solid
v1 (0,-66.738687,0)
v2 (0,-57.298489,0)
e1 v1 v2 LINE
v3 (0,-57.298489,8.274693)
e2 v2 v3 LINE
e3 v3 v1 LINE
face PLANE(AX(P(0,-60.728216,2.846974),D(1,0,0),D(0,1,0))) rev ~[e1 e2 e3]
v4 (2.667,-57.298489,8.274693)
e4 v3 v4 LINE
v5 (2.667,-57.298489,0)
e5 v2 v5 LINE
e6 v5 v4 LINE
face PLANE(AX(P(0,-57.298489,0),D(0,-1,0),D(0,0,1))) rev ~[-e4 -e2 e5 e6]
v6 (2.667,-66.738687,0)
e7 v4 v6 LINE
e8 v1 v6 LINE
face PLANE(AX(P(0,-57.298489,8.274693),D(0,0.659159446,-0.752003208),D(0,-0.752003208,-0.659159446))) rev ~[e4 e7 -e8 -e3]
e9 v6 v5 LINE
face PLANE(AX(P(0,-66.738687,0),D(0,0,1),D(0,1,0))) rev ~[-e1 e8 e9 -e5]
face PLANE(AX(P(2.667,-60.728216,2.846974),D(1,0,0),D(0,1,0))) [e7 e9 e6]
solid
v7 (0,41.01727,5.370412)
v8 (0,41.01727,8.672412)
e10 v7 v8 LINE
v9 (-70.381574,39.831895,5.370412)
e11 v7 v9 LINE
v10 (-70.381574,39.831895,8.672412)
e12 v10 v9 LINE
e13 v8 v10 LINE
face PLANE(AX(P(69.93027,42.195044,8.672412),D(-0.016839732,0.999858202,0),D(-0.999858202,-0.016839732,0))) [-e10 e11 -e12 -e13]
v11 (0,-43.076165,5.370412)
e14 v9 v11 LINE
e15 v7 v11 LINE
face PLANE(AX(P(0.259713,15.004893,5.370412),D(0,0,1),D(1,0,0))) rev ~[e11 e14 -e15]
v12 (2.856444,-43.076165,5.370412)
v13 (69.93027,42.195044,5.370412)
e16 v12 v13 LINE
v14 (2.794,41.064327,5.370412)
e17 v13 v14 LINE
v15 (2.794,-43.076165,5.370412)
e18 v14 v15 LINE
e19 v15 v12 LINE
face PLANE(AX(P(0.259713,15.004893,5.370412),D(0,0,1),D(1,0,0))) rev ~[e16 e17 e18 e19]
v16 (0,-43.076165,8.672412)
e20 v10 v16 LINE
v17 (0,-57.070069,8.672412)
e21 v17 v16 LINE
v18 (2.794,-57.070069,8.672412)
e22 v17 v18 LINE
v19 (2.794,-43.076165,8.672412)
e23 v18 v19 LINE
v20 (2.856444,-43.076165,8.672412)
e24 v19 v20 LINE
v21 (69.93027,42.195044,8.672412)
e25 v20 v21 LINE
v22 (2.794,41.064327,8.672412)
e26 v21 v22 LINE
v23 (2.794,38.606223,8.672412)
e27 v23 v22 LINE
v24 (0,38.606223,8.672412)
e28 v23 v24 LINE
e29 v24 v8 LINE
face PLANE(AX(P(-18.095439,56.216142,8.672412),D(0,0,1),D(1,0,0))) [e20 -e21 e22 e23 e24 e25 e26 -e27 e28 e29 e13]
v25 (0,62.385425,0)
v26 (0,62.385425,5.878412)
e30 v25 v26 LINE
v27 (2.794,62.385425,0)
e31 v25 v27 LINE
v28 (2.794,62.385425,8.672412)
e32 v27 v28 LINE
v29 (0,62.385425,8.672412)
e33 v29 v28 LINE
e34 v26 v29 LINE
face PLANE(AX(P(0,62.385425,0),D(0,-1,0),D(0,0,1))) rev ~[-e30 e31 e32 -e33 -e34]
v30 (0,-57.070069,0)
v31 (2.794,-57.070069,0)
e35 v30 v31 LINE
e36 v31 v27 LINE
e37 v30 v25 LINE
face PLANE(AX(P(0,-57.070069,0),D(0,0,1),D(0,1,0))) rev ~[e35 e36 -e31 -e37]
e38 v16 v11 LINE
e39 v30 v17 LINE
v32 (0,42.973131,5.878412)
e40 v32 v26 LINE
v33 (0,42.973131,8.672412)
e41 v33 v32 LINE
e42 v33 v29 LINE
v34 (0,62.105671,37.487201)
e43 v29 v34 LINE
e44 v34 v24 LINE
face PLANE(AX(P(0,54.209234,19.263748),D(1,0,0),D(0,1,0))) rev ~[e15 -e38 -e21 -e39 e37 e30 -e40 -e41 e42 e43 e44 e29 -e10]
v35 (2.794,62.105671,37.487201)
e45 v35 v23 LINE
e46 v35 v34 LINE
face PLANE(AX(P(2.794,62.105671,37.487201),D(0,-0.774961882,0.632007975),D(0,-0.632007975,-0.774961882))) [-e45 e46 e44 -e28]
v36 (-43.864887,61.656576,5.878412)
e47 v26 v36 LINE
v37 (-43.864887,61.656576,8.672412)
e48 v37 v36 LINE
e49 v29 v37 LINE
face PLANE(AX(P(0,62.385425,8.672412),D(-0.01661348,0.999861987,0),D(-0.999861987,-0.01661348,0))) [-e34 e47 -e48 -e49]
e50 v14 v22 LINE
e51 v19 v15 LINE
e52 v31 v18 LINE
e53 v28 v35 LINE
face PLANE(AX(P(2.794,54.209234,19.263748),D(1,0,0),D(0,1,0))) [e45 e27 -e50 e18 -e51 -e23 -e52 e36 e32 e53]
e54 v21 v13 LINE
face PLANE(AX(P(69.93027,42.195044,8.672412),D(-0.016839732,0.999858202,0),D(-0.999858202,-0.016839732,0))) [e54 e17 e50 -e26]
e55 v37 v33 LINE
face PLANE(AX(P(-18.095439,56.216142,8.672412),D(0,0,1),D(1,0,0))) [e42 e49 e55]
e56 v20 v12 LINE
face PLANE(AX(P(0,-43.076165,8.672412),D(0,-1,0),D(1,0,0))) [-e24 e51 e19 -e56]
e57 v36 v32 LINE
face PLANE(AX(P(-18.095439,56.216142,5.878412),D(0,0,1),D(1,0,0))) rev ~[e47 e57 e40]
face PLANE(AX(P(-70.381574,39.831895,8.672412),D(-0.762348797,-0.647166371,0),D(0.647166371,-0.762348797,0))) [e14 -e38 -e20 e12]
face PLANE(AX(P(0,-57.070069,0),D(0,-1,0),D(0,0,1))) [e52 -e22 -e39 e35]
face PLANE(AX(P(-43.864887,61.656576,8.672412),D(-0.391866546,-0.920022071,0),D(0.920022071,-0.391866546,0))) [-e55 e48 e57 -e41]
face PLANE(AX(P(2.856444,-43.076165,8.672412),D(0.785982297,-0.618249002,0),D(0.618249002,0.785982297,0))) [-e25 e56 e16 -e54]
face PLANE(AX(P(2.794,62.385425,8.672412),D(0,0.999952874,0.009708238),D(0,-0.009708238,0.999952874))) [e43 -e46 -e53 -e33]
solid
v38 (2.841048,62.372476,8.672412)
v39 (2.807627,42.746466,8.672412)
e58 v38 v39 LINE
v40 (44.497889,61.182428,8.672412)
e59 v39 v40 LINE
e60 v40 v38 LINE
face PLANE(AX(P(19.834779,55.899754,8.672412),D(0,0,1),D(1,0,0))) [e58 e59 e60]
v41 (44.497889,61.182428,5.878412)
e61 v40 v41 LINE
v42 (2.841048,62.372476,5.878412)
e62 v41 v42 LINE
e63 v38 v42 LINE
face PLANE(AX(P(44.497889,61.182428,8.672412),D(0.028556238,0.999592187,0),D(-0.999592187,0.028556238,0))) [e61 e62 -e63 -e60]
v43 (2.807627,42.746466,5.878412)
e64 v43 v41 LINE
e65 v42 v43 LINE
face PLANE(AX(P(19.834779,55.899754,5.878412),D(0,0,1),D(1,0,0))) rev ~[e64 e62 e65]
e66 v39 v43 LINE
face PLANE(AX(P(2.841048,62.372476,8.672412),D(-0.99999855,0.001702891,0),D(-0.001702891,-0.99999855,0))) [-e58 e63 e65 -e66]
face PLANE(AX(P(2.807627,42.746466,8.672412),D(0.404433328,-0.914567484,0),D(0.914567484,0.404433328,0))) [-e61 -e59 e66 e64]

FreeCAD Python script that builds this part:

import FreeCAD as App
import Part
import Sketcher
Q = App.Units.Quantity

doc = App.newDocument("Part")
body = doc.addObject("PartDesign::Body", "Body")
body.AllowCompound = True

sketch1 = body.newObject("Sketcher::SketchObject", "Sketch")
sketch1.AttachmentSupport = (doc.getObject("YZ_Plane"), [""])
sketch1.MapMode = "FlatFace"
sketch1.addGeometry([
    Part.LineSegment(App.Vector(-57, 9, 0), App.Vector(-57, 0, 0)),
    Part.LineSegment(App.Vector(-57, 0, 0), App.Vector(62, 0, 0)),
    Part.LineSegment(App.Vector(62, 0, 0), App.Vector(62, 9, 0)),
    Part.LineSegment(App.Vector(62, 9, 0), App.Vector(-57, 9, 0)),
], False)
sketch1.addConstraint([
    Sketcher.Constraint("Coincident", 0, 2, 1, 1),
    Sketcher.Constraint("Coincident", 1, 2, 2, 1),
    Sketcher.Constraint("Coincident", 2, 2, 3, 1),
    Sketcher.Constraint("Coincident", 3, 2, 0, 1),
    Sketcher.Constraint("Vertical", 0),
    Sketcher.Constraint("Horizontal", 1),
    Sketcher.Constraint("Vertical", 2),
    Sketcher.Constraint("Horizontal", 3),
    Sketcher.Constraint("PointOnObject", 0, 2, -1),
    Sketcher.Constraint("DistanceX", 1, 1, 1, 2, 119.455494),
    Sketcher.Constraint("DistanceY", 0, 2, 0, 1, 8.672412),
    Sketcher.Constraint("DistanceX", 0, 2, -1, 1, 57.070069),
])
pad1 = body.newObject("PartDesign::Pad", "Pad")
pad1.Profile = sketch1
pad1.Length = Q("0.11 in")

sketch2 = body.newObject("Sketcher::SketchObject", "Sketch001")
sketch2.AttachmentSupport = (doc.getObject("XY_Plane"), [""])
sketch2.MapMode = "FlatFace"
sketch2.AttachmentOffset = App.Placement(App.Vector(0, 0, 8.672412), App.Rotation())
sketch2.addGeometry([
    Part.LineSegment(App.Vector(0, -43.1, 0), App.Vector(2.9, -43.1, 0)),
    Part.LineSegment(App.Vector(2.9, -43.1, 0), App.Vector(69.9, 42.2, 0)),
    Part.LineSegment(App.Vector(69.9, 42.2, 0), App.Vector(-70.4, 39.8, 0)),
    Part.LineSegment(App.Vector(-70.4, 39.8, 0), App.Vector(0, -43.1, 0)),
], False)
sketch2.addConstraint([
    Sketcher.Constraint("Coincident", 0, 2, 1, 1),
    Sketcher.Constraint("Coincident", 1, 2, 2, 1),
    Sketcher.Constraint("Coincident", 2, 2, 3, 1),
    Sketcher.Constraint("Coincident", 3, 2, 0, 1),
    Sketcher.Constraint("Horizontal", 0),
    Sketcher.Constraint("PointOnObject", 3, 2, -2),
    Sketcher.Constraint("DistanceX", 0, 1, 0, 2, 2.856444),
    Sketcher.Constraint("DistanceX", -1, 1, 1, 2, 69.93027),
    Sketcher.Constraint("DistanceY", 0, 2, 1, 2, 85.271209),
    Sketcher.Constraint("DistanceY", 0, 2, 2, 2, 82.90806),
    Sketcher.Constraint("Distance", 2, 140.331743),
    Sketcher.Constraint("DistanceY", 0, 2, -1, 1, 43.076165),
])
pad2 = body.newObject("PartDesign::Pad", "Pad001")
pad2.Profile = sketch2
pad2.Length = Q("0.13 in")
pad2.Reversed = True

sketch3 = body.newObject("Sketcher::SketchObject", "Sketch002")
sketch3.AttachmentSupport = (doc.getObject("XY_Plane"), [""])
sketch3.MapMode = "FlatFace"
sketch3.AttachmentOffset = App.Placement(App.Vector(0, 0, 8.672412), App.Rotation())
sketch3.addGeometry([
    Part.LineSegment(App.Vector(3, 62, 0), App.Vector(3, 43, 0)),
    Part.LineSegment(App.Vector(3, 43, 0), App.Vector(44, 61, 0)),
    Part.LineSegment(App.Vector(44, 61, 0), App.Vector(3, 62, 0)),
    Part.LineSegment(App.Vector(-44, 62, 0), App.Vector(0, 43, 0)),
    Part.LineSegment(App.Vector(0, 43, 0), App.Vector(0, 62, 0)),
    Part.LineSegment(App.Vector(0, 62, 0), App.Vector(-44, 62, 0)),
], False)
sketch3.addConstraint([
    Sketcher.Constraint("Coincident", 0, 2, 1, 1),
    Sketcher.Constraint("Coincident", 1, 2, 2, 1),
    Sketcher.Constraint("Coincident", 2, 2, 0, 1),
    Sketcher.Constraint("Coincident", 3, 2, 4, 1),
    Sketcher.Constraint("Coincident", 4, 2, 5, 1),
    Sketcher.Constraint("Coincident", 5, 2, 3, 1),
    Sketcher.Constraint("Vertical", 4),
    Sketcher.Constraint("PointOnObject", 3, 2, -2),
    Sketcher.Constraint("DistanceY", 5, 2, 2, 2, 0.7159),
    Sketcher.Constraint("Distance", 0, 19.626038),
    Sketcher.Constraint("Distance", 3, 47.678081),
    Sketcher.Constraint("Distance", 5, 43.870942),
    Sketcher.Constraint("DistanceY", 4, 1, 4, 2, 19.412294),
    Sketcher.Constraint("DistanceX", -1, 1, 1, 2, 44.497889),
    Sketcher.Constraint("DistanceY", -1, 1, 1, 2, 61.182428),
    Sketcher.Constraint("DistanceY", -1, 1, 3, 2, 42.973131),
    Sketcher.Constraint("DistanceX", 0, 2, 2, 2, 0.033421),
    Sketcher.Constraint("DistanceX", 2, 2, 1, 2, 41.656841),
])
pad3 = body.newObject("PartDesign::Pad", "Pad002")
pad3.Profile = sketch3
pad3.Length = Q("0.11 in")
pad3.Reversed = True

sketch4 = body.newObject("Sketcher::SketchObject", "Sketch003")
sketch4.AttachmentSupport = (doc.getObject("YZ_Plane"), [""])
sketch4.MapMode = "FlatFace"
sketch4.AttachmentOffset = App.Placement(App.Vector(0, 0, 0.11 * 25.4), App.Rotation())
sketch4.addGeometry([
    Part.LineSegment(App.Vector(62, 37, 0), App.Vector(39, 9, 0)),
    Part.LineSegment(App.Vector(39, 9, 0), App.Vector(62, 9, 0)),
    Part.LineSegment(App.Vector(62, 9, 0), App.Vector(62, 37, 0)),
], False)
sketch4.addConstraint([
    Sketcher.Constraint("Coincident", 0, 2, 1, 1),
    Sketcher.Constraint("Coincident", 1, 2, 2, 1),
    Sketcher.Constraint("Coincident", 2, 2, 0, 1),
    Sketcher.Constraint("Horizontal", 1),
    Sketcher.Constraint("DistanceX", 1, 1, 1, 2, 23.779202),
    Sketcher.Constraint("Distance", 0, 37.182202),
    Sketcher.Constraint("DistanceY", -1, 1, 2, 2, 37.487201),
    Sketcher.Constraint("DistanceX", -1, 1, 2, 2, 62.105671),
    Sketcher.Constraint("DistanceY", 1, 2, 2, 2, 28.814789),
])
pad4 = body.newObject("PartDesign::Pad", "Pad003")
pad4.Profile = sketch4
pad4.Length = Q("0.11 in")
pad4.Reversed = True
body2 = doc.addObject("PartDesign::Body", "Body001")

sketch5 = body2.newObject("Sketcher::SketchObject", "Sketch004")
sketch5.AttachmentSupport = (doc.getObject("YZ_Plane001"), [""])
sketch5.MapMode = "FlatFace"
sketch5.addGeometry([
    Part.LineSegment(App.Vector(-57, 0, 0), App.Vector(-57, 8, 0)),
    Part.LineSegment(App.Vector(-57, 8, 0), App.Vector(-67, 0, 0)),
    Part.LineSegment(App.Vector(-67, 0, 0), App.Vector(-57, 0, 0)),
], False)
sketch5.addConstraint([
    Sketcher.Constraint("Coincident", 0, 2, 1, 1),
    Sketcher.Constraint("Coincident", 1, 2, 2, 1),
    Sketcher.Constraint("Coincident", 2, 2, 0, 1),
    Sketcher.Constraint("Vertical", 0),
    Sketcher.Constraint("Horizontal", 2),
    Sketcher.Constraint("PointOnObject", 1, 2, -1),
    Sketcher.Constraint("DistanceX", 2, 1, 2, 2, 9.440198),
    Sketcher.Constraint("Distance", 1, 12.553401),
    Sketcher.Constraint("DistanceX", 0, 2, -1, 1, 57.298489),
])
pad5 = body2.newObject("PartDesign::Pad", "Pad004")
pad5.Profile = sketch5
pad5.Length = Q("0.105 in")

doc.recompute()
